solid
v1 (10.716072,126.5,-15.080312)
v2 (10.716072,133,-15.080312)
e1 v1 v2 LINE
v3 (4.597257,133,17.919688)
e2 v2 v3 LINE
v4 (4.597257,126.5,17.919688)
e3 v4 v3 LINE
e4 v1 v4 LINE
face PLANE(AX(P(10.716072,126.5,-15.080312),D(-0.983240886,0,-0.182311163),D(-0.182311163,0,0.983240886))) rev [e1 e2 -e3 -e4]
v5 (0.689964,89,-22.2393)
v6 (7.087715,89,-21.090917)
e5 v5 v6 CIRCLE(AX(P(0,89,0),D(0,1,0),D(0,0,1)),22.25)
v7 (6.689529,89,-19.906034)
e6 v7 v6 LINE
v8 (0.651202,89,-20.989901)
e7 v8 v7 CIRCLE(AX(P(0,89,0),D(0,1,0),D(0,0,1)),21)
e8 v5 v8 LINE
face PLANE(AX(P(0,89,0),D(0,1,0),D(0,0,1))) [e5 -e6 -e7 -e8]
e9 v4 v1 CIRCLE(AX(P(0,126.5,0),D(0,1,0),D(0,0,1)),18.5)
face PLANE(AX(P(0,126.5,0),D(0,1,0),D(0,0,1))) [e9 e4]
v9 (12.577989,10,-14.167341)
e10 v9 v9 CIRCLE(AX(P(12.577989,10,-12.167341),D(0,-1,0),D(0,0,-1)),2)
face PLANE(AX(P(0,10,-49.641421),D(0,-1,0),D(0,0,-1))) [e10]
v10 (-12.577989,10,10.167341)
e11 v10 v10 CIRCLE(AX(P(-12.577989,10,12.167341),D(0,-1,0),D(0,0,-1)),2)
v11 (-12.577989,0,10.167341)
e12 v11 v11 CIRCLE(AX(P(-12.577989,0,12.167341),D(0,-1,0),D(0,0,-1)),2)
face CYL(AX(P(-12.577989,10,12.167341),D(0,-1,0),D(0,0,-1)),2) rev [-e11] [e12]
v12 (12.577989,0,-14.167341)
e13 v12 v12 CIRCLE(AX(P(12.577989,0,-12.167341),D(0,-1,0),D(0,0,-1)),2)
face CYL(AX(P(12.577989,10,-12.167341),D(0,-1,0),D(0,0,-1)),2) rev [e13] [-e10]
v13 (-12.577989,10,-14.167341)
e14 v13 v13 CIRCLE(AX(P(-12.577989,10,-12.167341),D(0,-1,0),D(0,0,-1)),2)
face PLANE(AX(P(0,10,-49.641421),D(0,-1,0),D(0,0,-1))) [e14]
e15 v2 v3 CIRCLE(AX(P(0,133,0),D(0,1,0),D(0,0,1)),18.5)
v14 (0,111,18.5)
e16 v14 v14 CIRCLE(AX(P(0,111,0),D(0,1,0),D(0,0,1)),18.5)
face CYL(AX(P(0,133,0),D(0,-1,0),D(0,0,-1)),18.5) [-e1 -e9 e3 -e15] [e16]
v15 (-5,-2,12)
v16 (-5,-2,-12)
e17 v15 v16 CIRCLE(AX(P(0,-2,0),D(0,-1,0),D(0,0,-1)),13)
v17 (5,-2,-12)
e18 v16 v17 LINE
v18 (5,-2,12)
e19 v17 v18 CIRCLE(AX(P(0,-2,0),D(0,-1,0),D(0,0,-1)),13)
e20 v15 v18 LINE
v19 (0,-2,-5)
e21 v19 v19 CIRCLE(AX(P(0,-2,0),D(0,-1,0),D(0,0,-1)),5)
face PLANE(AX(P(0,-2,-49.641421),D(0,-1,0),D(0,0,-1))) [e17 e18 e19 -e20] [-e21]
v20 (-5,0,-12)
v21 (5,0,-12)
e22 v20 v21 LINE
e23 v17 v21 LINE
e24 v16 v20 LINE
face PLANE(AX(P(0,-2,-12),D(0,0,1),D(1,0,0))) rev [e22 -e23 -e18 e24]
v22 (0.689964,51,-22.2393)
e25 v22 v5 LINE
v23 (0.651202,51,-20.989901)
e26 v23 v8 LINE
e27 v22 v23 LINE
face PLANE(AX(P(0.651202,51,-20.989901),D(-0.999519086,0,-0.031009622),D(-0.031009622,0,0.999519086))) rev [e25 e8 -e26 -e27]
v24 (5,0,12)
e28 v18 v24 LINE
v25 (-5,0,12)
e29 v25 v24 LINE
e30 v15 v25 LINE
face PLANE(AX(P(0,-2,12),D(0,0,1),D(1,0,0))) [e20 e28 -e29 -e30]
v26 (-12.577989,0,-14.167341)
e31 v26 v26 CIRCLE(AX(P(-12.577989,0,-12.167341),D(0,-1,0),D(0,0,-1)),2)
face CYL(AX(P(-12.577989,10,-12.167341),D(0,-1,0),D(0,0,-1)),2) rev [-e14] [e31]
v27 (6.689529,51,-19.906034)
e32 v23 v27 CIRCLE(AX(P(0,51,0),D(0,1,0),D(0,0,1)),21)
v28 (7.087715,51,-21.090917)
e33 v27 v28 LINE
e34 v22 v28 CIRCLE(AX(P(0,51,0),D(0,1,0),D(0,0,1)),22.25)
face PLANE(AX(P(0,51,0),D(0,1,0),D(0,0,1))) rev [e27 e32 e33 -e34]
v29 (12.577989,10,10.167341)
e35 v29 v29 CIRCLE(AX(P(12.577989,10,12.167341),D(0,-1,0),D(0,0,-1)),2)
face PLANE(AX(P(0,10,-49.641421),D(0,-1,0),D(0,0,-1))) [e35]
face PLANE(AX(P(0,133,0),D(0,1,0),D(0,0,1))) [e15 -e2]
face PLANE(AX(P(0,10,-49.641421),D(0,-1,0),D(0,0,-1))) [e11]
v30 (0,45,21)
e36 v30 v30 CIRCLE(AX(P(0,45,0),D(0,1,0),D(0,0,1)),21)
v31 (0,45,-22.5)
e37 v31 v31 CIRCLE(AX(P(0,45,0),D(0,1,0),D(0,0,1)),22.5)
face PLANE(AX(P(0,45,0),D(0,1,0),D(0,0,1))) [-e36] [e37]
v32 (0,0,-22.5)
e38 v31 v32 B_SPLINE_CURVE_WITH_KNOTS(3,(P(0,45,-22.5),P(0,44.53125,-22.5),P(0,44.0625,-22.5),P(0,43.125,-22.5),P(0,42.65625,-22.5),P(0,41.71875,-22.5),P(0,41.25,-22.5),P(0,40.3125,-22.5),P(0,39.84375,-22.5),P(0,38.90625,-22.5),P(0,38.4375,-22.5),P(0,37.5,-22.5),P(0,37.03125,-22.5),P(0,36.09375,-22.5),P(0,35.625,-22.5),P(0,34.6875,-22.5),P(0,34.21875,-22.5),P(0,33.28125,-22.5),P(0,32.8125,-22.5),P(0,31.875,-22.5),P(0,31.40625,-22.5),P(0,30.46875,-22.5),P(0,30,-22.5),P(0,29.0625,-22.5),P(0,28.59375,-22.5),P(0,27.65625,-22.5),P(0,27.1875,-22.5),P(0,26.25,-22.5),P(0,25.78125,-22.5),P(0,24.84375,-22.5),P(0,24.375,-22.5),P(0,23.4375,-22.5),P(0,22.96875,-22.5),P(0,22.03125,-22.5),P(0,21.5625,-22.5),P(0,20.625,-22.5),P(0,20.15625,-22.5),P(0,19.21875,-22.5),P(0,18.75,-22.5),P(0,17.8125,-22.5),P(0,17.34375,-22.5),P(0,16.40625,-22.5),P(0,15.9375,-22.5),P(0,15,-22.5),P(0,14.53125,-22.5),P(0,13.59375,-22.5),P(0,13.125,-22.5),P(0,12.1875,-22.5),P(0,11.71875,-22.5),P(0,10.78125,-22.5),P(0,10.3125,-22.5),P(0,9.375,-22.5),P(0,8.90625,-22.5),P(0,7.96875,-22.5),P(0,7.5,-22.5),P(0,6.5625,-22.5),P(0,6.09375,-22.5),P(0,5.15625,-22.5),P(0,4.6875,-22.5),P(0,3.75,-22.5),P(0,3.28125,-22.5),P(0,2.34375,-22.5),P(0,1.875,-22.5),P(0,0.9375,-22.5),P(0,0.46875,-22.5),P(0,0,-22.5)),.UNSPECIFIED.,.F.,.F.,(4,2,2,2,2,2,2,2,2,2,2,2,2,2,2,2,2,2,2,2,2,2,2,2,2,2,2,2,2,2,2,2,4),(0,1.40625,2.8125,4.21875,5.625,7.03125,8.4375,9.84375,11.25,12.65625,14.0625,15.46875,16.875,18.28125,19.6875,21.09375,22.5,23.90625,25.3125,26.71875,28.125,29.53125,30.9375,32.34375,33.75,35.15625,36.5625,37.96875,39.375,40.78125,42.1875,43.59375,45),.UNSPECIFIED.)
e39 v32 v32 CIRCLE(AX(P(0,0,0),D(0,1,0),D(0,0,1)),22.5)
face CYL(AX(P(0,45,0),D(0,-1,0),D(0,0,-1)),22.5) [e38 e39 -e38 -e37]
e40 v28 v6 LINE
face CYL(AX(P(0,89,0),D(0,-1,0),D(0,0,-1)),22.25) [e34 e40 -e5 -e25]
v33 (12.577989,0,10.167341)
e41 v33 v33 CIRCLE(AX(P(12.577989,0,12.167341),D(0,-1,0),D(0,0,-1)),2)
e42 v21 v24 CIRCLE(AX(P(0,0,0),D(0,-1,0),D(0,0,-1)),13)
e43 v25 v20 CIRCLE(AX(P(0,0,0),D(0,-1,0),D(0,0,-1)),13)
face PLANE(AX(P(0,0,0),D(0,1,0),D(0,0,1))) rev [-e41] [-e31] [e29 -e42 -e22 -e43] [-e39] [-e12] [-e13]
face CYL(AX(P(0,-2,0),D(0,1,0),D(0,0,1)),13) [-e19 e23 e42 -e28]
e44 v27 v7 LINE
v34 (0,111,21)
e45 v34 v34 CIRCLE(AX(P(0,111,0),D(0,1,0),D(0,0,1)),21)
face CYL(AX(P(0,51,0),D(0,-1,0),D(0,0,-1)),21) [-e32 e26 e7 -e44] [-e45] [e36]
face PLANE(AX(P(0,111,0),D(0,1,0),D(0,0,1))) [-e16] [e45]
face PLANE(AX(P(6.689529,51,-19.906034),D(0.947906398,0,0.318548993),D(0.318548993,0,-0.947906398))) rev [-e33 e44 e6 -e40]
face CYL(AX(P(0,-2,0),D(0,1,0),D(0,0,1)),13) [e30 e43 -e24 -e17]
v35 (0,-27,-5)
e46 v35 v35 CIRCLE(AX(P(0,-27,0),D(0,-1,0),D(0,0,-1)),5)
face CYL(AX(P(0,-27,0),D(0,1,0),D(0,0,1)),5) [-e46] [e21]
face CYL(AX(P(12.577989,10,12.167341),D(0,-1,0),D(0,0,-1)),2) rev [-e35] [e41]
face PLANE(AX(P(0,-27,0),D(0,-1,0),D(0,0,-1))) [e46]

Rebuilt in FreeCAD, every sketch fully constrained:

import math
import FreeCAD as App
import Part
import Sketcher
from FreeCAD import Vector
Q = App.Units.Quantity

doc = App.newDocument("Part")
params = doc.addObject("Spreadsheet::Sheet", "Params")
for row, (alias, value) in enumerate([
    ("sketch1_diameter", "45 mm"),
    ("pad1_length", "45 mm"),
    ("sketch2_diameter", "42 mm"),
    ("pad2_length", "6 mm"),
    ("sketch3_diameter", "44.5 mm"),
    ("pad3_length", "38 mm"),
    ("sketch4_diameter", "42 mm"),
    ("pad4_length", "22 mm"),
    ("sketch5_diameter", "37 mm"),
    ("pad5_length", "22 mm"),
    ("sketch6_radius", "18.5 mm"),
    ("pocket1_length", "6.5 mm"),
    ("sketch7_radius", "21 mm"),
    ("sketch7_radius2", "22.25 mm"),
    ("pocket2_length", "38 mm"),
    ("sketch8_radius", "13 mm"),
    ("sketch8_width", "10 mm"),
    ("pad6_length", "2 mm"),
    ("sketch9_diameter", "10 mm"),
    ("pad7_length", "25 mm"),
    ("sketch10_radius", "2 mm"),
    ("pocket3_length", "10 mm"),
], start=1):
    params.set(f"A{row}", alias)
    params.set(f"B{row}", "=" + value)
    params.setAlias(f"B{row}", alias)

body = doc.addObject("PartDesign::Body", "Body")

# Sketch on XZ plane
sketch1 = body.newObject("Sketcher::SketchObject", "Sketch")
sketch1.AttachmentSupport = (doc.getObject("XZ_Plane"), [""])
sketch1.MapMode = "FlatFace"
sketch1.addGeometry(Part.Circle(Vector(0, 0, 0), Vector(0, 0, 1), 22), False)
sketch1.addConstraint([
    Sketcher.Constraint("Coincident", 0, 3, -1, 1),
    Sketcher.Constraint("Diameter", 0, Q("45 mm")),
])
sketch1.setExpression("Constraints[1]", "Params.sketch1_diameter")
pad1 = body.newObject("PartDesign::Pad", "Pad")
pad1.Profile = sketch1
pad1.setExpression("Length", "Params.pad1_length")
pad1.Reversed = True

# Sketch on XZ plane
sketch2 = body.newObject("Sketcher::SketchObject", "Sketch001")
sketch2.AttachmentSupport = (doc.getObject("XZ_Plane"), [""])
sketch2.MapMode = "FlatFace"
sketch2.AttachmentOffset = App.Placement(Vector(0, 0, -45), App.Rotation())
sketch2.addGeometry(Part.Circle(Vector(0, 0, 0), Vector(0, 0, 1), 21), False)
sketch2.addConstraint([
    Sketcher.Constraint("Coincident", 0, 3, -1, 1),
    Sketcher.Constraint("Diameter", 0, Q("42 mm")),
])
sketch2.setExpression("Constraints[1]", "Params.sketch2_diameter")
pad2 = body.newObject("PartDesign::Pad", "Pad001")
pad2.Profile = sketch2
pad2.setExpression("Length", "Params.pad2_length")
pad2.Reversed = True

# Sketch on XZ plane
sketch3 = body.newObject("Sketcher::SketchObject", "Sketch002")
sketch3.AttachmentSupport = (doc.getObject("XZ_Plane"), [""])
sketch3.MapMode = "FlatFace"
sketch3.AttachmentOffset = App.Placement(Vector(0, 0, -51), App.Rotation())
sketch3.addGeometry(Part.Circle(Vector(0, 0, 0), Vector(0, 0, 1), 22), False)
sketch3.addConstraint([
    Sketcher.Constraint("Coincident", 0, 3, -1, 1),
    Sketcher.Constraint("Diameter", 0, Q("44.5 mm")),
])
sketch3.setExpression("Constraints[1]", "Params.sketch3_diameter")
pad3 = body.newObject("PartDesign::Pad", "Pad002")
pad3.Profile = sketch3
pad3.setExpression("Length", "Params.pad3_length")
pad3.Reversed = True

# Sketch on XZ plane
sketch4 = body.newObject("Sketcher::SketchObject", "Sketch003")
sketch4.AttachmentSupport = (doc.getObject("XZ_Plane"), [""])
sketch4.MapMode = "FlatFace"
sketch4.AttachmentOffset = App.Placement(Vector(0, 0, -89), App.Rotation())
sketch4.addGeometry(Part.Circle(Vector(0, 0, 0), Vector(0, 0, 1), 21), False)
sketch4.addConstraint([
    Sketcher.Constraint("Coincident", 0, 3, -1, 1),
    Sketcher.Constraint("Diameter", 0, Q("42 mm")),
])
sketch4.setExpression("Constraints[1]", "Params.sketch4_diameter")
pad4 = body.newObject("PartDesign::Pad", "Pad003")
pad4.Profile = sketch4
pad4.setExpression("Length", "Params.pad4_length")
pad4.Reversed = True

# Sketch on XZ plane
sketch5 = body.newObject("Sketcher::SketchObject", "Sketch004")
sketch5.AttachmentSupport = (doc.getObject("XZ_Plane"), [""])
sketch5.MapMode = "FlatFace"
sketch5.AttachmentOffset = App.Placement(Vector(0, 0, -111), App.Rotation())
sketch5.addGeometry(Part.Circle(Vector(0, 0, 0), Vector(0, 0, 1), 18), False)
sketch5.addConstraint([
    Sketcher.Constraint("Coincident", 0, 3, -1, 1),
    Sketcher.Constraint("Diameter", 0, Q("37 mm")),
])
sketch5.setExpression("Constraints[1]", "Params.sketch5_diameter")
pad5 = body.newObject("PartDesign::Pad", "Pad004")
pad5.Profile = sketch5
pad5.setExpression("Length", "Params.pad5_length")
pad5.Reversed = True

# Sketch on XZ plane
sketch6 = body.newObject("Sketcher::SketchObject", "Sketch005")
sketch6.AttachmentSupport = (doc.getObject("XZ_Plane"), [""])
sketch6.MapMode = "FlatFace"
sketch6.AttachmentOffset = App.Placement(Vector(0, 0, -126.5), App.Rotation())
sketch6.addGeometry([
    Part.LineSegment(Vector(11, -15, 0), Vector(5, 18, 0)),
    Part.ArcOfCircle(Part.Circle(Vector(0, 0, 0), Vector(0, 0, 1), 18), math.radians(-55), math.radians(76)),
], False)
sketch6.addConstraint([
    Sketcher.Constraint("Coincident", 0, 1, 1, 1),
    Sketcher.Constraint("Coincident", 1, 2, 0, 2),
    Sketcher.Constraint("Coincident", 1, 3, -1, 1),
    Sketcher.Constraint("Radius", 1, Q("18.5 mm")),
    Sketcher.Constraint("DistanceY", 0, 1, 1, 2, Q("33 mm")),
    Sketcher.Constraint("DistanceX", -1, 1, 0, 1, Q("10.716072 mm")),
])
sketch6.setExpression("Constraints[3]", "Params.sketch6_radius")
pocket1 = body.newObject("PartDesign::Pocket", "Pocket")
pocket1.Profile = sketch6
pocket1.setExpression("Length", "Params.pocket1_length")

# Sketch on XZ plane
sketch7 = body.newObject("Sketcher::SketchObject", "Sketch006")
sketch7.AttachmentSupport = (doc.getObject("XZ_Plane"), [""])
sketch7.MapMode = "FlatFace"
sketch7.AttachmentOffset = App.Placement(Vector(0, 0, -51), App.Rotation())
sketch7.addGeometry([
    Part.LineSegment(Vector(0.7, -22.2, 0), Vector(0.7, -21, 0)),
    Part.ArcOfCircle(Part.Circle(Vector(0, 0, 0), Vector(0, 0, 1), 21), math.radians(-88.22), math.radians(-71.42)),
    Part.LineSegment(Vector(6.7, -19.9, 0), Vector(7.1, -21.1, 0)),
    Part.ArcOfCircle(Part.Circle(Vector(0, 0, 0), Vector(0, 0, 1), 22.2), math.radians(-88.22), math.radians(-71.42)),
], False)
sketch7.addConstraint([
    Sketcher.Constraint("Coincident", 0, 2, 1, 1),
    Sketcher.Constraint("Coincident", 1, 2, 2, 1),
    Sketcher.Constraint("Coincident", 2, 2, 3, 2),
    Sketcher.Constraint("Coincident", 3, 1, 0, 1),
    Sketcher.Constraint("Coincident", 1, 3, -1, 1),
    Sketcher.Constraint("Coincident", 3, 3, -1, 1),
    Sketcher.Constraint("Radius", 1, Q("21 mm")),
    Sketcher.Constraint("Radius", 3, Q("22.25 mm")),
    Sketcher.Constraint("DistanceY", 0, 2, -1, 1, Q("20.989901 mm")),
    Sketcher.Constraint("DistanceY", 3, 1, -1, 1, Q("22.2393 mm")),
    Sketcher.Constraint("DistanceX", -1, 1, 1, 2, Q("6.689529 mm")),
    Sketcher.Constraint("DistanceX", 3, 1, 2, 2, Q("6.397751 mm")),
])
sketch7.setExpression("Constraints[6]", "Params.sketch7_radius")
sketch7.setExpression("Constraints[7]", "Params.sketch7_radius2")
pocket2 = body.newObject("PartDesign::Pocket", "Pocket001")
pocket2.Profile = sketch7
pocket2.setExpression("Length", "Params.pocket2_length")

# Sketch on XZ plane
sketch8 = body.newObject("Sketcher::SketchObject", "Sketch007")
sketch8.AttachmentSupport = (doc.getObject("XZ_Plane"), [""])
sketch8.MapMode = "FlatFace"
sketch8.addGeometry([
    Part.ArcOfCircle(Part.Circle(Vector(0, 0, 0), Vector(0, 0, 1), 13), math.radians(113), math.radians(247)),  # 0
    Part.LineSegment(Vector(-5, -12, 0), Vector(5, -12, 0)),  # 1
    Part.ArcOfCircle(Part.Circle(Vector(0, 0, 0), Vector(0, 0, 1), 13), math.radians(-67), math.radians(0)),  # 2
    Part.ArcOfCircle(Part.Circle(Vector(0, 0, 0), Vector(0, 0, 1), 13), math.radians(0), math.radians(67)),  # 3
    Part.LineSegment(Vector(5, 12, 0), Vector(-5, 12, 0)),  # 4
], False)
sketch8.addConstraint([
    Sketcher.Constraint("Coincident", 0, 2, 1, 1),
    Sketcher.Constraint("Coincident", 1, 2, 2, 1),
    Sketcher.Constraint("Tangent", 2, 2, 3, 1),
    Sketcher.Constraint("Coincident", 3, 2, 4, 1),
    Sketcher.Constraint("Coincident", 4, 2, 0, 1),
    Sketcher.Constraint("Horizontal", 1),
    Sketcher.Constraint("Horizontal", 4),
    Sketcher.Constraint("Coincident", 0, 3, -1, 1),
    Sketcher.Constraint("Coincident", 2, 3, -1, 1),
    Sketcher.Constraint("Equal", 0, 2),
    Sketcher.Constraint("Equal", 2, 3),
    Sketcher.Constraint("PointOnObject", 2, 2, -1),
    Sketcher.Constraint("Vertical", 1, 2, 3, 2),
    Sketcher.Constraint("Radius", 0, Q("13 mm")),
    Sketcher.Constraint("DistanceX", 1, 1, 1, 2, Q("10 mm")),
])
sketch8.setExpression("Constraints[13]", "Params.sketch8_radius")
sketch8.setExpression("Constraints[14]", "Params.sketch8_width")
pad6 = body.newObject("PartDesign::Pad", "Pad005")
pad6.Profile = sketch8
pad6.setExpression("Length", "Params.pad6_length")

# Sketch on XZ plane
sketch9 = body.newObject("Sketcher::SketchObject", "Sketch008")
sketch9.AttachmentSupport = (doc.getObject("XZ_Plane"), [""])
sketch9.MapMode = "FlatFace"
sketch9.AttachmentOffset = App.Placement(Vector(0, 0, 2), App.Rotation())
sketch9.addGeometry(Part.Circle(Vector(0, 0, 0), Vector(0, 0, 1), 5), False)
sketch9.addConstraint([
    Sketcher.Constraint("Coincident", 0, 3, -1, 1),
    Sketcher.Constraint("Diameter", 0, Q("10 mm")),
])
sketch9.setExpression("Constraints[1]", "Params.sketch9_diameter")
pad7 = body.newObject("PartDesign::Pad", "Pad006")
pad7.Profile = sketch9
pad7.setExpression("Length", "Params.pad7_length")

# Sketch on XZ plane
sketch10 = body.newObject("Sketcher::SketchObject", "Sketch009")
sketch10.AttachmentSupport = (doc.getObject("XZ_Plane"), [""])
sketch10.MapMode = "FlatFace"
sketch10.addGeometry([
    Part.ArcOfCircle(Part.Circle(Vector(-12.6, 12.2, 0), Vector(0, 0, 1), 2), math.radians(0), math.radians(270)),  # 0
    Part.ArcOfCircle(Part.Circle(Vector(-12.6, 12.2, 0), Vector(0, 0, 1), 2), math.radians(-90), math.radians(0)),  # 1
    Part.ArcOfCircle(Part.Circle(Vector(-12.6, -12.2, 0), Vector(0, 0, 1), 2), math.radians(0), math.radians(90)),  # 2
    Part.ArcOfCircle(Part.Circle(Vector(-12.6, -12.2, 0), Vector(0, 0, 1), 2), math.radians(90), math.radians(360)),  # 3
    Part.ArcOfCircle(Part.Circle(Vector(12.6, -12.2, 0), Vector(0, 0, 1), 2), math.radians(90), math.radians(180)),  # 4
    Part.ArcOfCircle(Part.Circle(Vector(12.6, -12.2, 0), Vector(0, 0, 1), 2), math.radians(180), math.radians(360)),  # 5
    Part.ArcOfCircle(Part.Circle(Vector(12.6, -12.2, 0), Vector(0, 0, 1), 2), math.radians(0), math.radians(90)),  # 6
    Part.ArcOfCircle(Part.Circle(Vector(12.6, 12.2, 0), Vector(0, 0, 1), 2), math.radians(180), math.radians(270)),  # 7
    Part.ArcOfCircle(Part.Circle(Vector(12.6, 12.2, 0), Vector(0, 0, 1), 2), math.radians(-90), math.radians(0)),  # 8
    Part.ArcOfCircle(Part.Circle(Vector(12.6, 12.2, 0), Vector(0, 0, 1), 2), math.radians(0), math.radians(180)),  # 9
], False)
sketch10.addConstraint([
    Sketcher.Constraint("Tangent", 0, 1, 1, 2),
    Sketcher.Constraint("Coincident", 1, 1, 0, 2),
    Sketcher.Constraint("Tangent", 2, 1, 3, 2),
    Sketcher.Constraint("Coincident", 3, 1, 2, 2),
    Sketcher.Constraint("Tangent", 4, 2, 5, 1),
    Sketcher.Constraint("Tangent", 5, 2, 6, 1),
    Sketcher.Constraint("Tangent", 6, 2, 4, 1),
    Sketcher.Constraint("Tangent", 7, 2, 8, 1),
    Sketcher.Constraint("Tangent", 8, 2, 9, 1),
    Sketcher.Constraint("Tangent", 9, 2, 7, 1),
    Sketcher.Constraint("Equal", 1, 2),
    Sketcher.Constraint("Equal", 3, 4),
    Sketcher.Constraint("Equal", 6, 7),
    Sketcher.Constraint("Symmetric", 0, 3, 4, 3, -1, 1),
    Sketcher.Constraint("Symmetric", 2, 3, 7, 3, -1, 1),
    Sketcher.Constraint("Symmetric", 2, 3, 4, 3, -2),
    Sketcher.Constraint("Horizontal", 9, 3, 0, 1),
    Sketcher.Constraint("Horizontal", 6, 3, 2, 1),
    Sketcher.Constraint("Horizontal", 2, 1, 4, 2),
    Sketcher.Constraint("Horizontal", 4, 2, 5, 2),
    Sketcher.Constraint("Horizontal", 0, 1, 8, 2),
    Sketcher.Constraint("Horizontal", 8, 2, 9, 2),
    Sketcher.Constraint("Vertical", 3, 3, 1, 1),
    Sketcher.Constraint("Vertical", 1, 1, 3, 1),
    Sketcher.Constraint("Vertical", 9, 3, 6, 2),
    Sketcher.Constraint("Vertical", 6, 2, 7, 2),
    Sketcher.Constraint("Radius", 0, Q("2 mm")),
    Sketcher.Constraint("DistanceX", 0, 3, -1, 1, Q("12.577989 mm")),
    Sketcher.Constraint("DistanceY", -1, 1, 0, 3, Q("12.167341 mm")),
])
sketch10.setExpression("Constraints[26]", "Params.sketch10_radius")
pocket3 = body.newObject("PartDesign::Pocket", "Pocket002")
pocket3.Profile = sketch10
pocket3.setExpression("Length", "Params.pocket3_length")

doc.recompute()
